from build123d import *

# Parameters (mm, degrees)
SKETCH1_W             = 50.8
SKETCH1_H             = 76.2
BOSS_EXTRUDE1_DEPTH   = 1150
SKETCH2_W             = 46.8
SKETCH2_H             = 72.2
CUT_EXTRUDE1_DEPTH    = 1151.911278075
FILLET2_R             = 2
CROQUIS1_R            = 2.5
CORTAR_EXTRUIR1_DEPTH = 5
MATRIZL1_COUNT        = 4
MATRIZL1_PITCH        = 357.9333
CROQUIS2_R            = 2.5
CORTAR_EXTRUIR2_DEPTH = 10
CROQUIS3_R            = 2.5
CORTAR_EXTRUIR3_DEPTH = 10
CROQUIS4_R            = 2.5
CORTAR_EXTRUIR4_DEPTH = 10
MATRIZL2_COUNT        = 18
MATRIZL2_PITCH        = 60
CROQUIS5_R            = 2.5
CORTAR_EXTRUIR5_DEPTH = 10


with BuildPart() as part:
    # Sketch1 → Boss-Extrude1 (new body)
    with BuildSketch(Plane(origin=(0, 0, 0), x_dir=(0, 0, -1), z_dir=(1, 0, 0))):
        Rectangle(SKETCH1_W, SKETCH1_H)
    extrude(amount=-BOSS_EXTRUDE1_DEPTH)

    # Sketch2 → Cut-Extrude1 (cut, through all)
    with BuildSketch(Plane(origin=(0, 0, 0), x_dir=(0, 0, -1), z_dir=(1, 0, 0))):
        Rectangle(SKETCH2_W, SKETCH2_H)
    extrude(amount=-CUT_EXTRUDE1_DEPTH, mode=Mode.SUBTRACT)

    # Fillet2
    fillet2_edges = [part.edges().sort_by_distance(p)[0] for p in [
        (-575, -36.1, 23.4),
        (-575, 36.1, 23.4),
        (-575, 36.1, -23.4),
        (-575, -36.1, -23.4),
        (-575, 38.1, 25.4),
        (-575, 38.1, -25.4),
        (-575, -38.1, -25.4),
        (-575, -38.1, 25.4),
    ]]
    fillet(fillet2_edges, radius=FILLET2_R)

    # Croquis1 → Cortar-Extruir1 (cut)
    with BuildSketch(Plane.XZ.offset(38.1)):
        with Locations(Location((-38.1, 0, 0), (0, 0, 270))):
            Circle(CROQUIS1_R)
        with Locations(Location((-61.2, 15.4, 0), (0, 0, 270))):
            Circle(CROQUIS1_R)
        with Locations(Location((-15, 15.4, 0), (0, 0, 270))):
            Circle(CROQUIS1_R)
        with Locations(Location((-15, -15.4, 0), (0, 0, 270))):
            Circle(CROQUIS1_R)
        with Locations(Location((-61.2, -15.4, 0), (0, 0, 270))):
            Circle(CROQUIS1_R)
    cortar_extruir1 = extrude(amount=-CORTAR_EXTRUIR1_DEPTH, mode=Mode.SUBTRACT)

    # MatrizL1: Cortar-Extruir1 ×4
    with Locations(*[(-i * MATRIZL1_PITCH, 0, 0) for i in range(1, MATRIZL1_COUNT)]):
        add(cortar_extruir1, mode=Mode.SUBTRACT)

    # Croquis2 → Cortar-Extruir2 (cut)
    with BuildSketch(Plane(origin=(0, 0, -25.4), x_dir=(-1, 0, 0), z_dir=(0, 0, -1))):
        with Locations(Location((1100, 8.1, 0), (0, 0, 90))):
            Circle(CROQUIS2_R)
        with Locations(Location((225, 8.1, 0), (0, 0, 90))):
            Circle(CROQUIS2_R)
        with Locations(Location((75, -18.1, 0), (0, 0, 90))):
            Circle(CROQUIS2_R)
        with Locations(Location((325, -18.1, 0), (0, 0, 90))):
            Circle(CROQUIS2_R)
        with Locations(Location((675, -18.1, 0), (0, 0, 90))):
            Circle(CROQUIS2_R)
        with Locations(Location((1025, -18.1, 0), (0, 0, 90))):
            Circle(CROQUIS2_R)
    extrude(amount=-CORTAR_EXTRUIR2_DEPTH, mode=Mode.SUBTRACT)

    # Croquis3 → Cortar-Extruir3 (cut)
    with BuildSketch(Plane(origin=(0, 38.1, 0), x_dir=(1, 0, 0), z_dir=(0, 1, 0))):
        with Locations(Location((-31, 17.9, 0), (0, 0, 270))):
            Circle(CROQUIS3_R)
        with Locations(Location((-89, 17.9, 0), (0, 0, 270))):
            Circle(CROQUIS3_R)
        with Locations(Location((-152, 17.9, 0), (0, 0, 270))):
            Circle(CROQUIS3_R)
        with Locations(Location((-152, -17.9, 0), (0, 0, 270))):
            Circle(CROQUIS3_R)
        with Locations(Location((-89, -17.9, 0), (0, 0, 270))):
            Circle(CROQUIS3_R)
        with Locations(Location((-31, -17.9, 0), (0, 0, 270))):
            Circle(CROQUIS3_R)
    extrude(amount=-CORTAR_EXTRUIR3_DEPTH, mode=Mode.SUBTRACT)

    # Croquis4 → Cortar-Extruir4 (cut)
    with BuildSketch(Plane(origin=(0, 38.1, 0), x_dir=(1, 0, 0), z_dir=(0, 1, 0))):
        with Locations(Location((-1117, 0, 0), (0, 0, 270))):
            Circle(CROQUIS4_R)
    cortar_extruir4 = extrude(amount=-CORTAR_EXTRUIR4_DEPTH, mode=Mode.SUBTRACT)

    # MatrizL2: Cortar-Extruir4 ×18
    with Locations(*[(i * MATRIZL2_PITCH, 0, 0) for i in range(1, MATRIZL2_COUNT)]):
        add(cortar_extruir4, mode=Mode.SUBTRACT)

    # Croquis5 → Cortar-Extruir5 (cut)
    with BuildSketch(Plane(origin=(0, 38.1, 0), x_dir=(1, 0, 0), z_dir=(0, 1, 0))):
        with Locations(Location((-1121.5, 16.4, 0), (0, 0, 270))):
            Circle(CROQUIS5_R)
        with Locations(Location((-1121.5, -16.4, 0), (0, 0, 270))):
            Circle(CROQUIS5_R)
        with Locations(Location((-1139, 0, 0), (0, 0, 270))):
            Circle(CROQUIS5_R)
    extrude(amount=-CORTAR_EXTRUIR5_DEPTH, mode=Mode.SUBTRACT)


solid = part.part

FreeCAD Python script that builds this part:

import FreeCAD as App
import Part
import Sketcher


def edges_at(feature, points):
    """Names of the edges that pass closest to the given points."""
    edges = feature.Shape.Edges
    near = lambda p: min(range(len(edges)), key=lambda i: edges[i].distToShape(Part.Vertex(*p))[0])
    return sorted({f"Edge{near(p) + 1}" for p in points})


def add_polygon(sketch, points):
    """Adds a closed chain of lines whose ends are joined by coincident constraints."""
    first, n = sketch.GeometryCount, len(points)
    for a, b in zip(points, points[1:] + points[:1]):
        sketch.addGeometry(Part.LineSegment(App.Vector(*a, 0), App.Vector(*b, 0)), False)
    for i in range(n):
        sketch.addConstraint(Sketcher.Constraint("Coincident", first + i, 2, first + (i + 1) % n, 1))

doc = App.newDocument("Part")
body = doc.addObject("PartDesign::Body", "Body")

# Sketch on YZ plane
sketch1 = doc.addObject("Sketcher::SketchObject", "Sketch")
body.addObject(sketch1)
sketch1.AttachmentSupport = (doc.YZ_Plane, [""])
sketch1.MapMode = "FlatFace"
add_polygon(sketch1, [(38, 25), (-38, 25), (-38, -25), (38, -25)])  # lines 0-3
sketch1.addConstraint([
    Sketcher.Constraint("Horizontal", 0),
    Sketcher.Constraint("Vertical", 1),
    Sketcher.Constraint("Horizontal", 2),
    Sketcher.Constraint("Vertical", 3),
    Sketcher.Constraint("Symmetric", 0, 2, 2, 2, -1, 1),
    Sketcher.Constraint("DistanceX", 0, 2, 0, 1, 76.2),
    Sketcher.Constraint("DistanceY", 1, 2, 1, 1, 50.8),
])
pad1 = doc.addObject("PartDesign::Pad", "Pad")
body.addObject(pad1)
pad1.Profile = sketch1
pad1.Length = 1150
pad1.Reversed = True

# Sketch on YZ plane
sketch2 = doc.addObject("Sketcher::SketchObject", "Sketch001")
body.addObject(sketch2)
sketch2.AttachmentSupport = (doc.YZ_Plane, [""])
sketch2.MapMode = "FlatFace"
add_polygon(sketch2, [(36, 23), (-36, 23), (-36, -23), (36, -23)])  # lines 0-3
sketch2.addConstraint([
    Sketcher.Constraint("Horizontal", 0),
    Sketcher.Constraint("Vertical", 1),
    Sketcher.Constraint("Horizontal", 2),
    Sketcher.Constraint("Vertical", 3),
    Sketcher.Constraint("Symmetric", 0, 2, 2, 2, -1, 1),
    Sketcher.Constraint("DistanceX", 0, 2, 0, 1, 72.2),
    Sketcher.Constraint("DistanceY", 1, 2, 1, 1, 46.8),
])
pocket1 = doc.addObject("PartDesign::Pocket", "Pocket")
body.addObject(pocket1)
pocket1.Profile = sketch2
pocket1.Type = "ThroughAll"
doc.recompute()

fillet = doc.addObject("PartDesign::Fillet", "Fillet")
body.addObject(fillet)
fillet.Base = (pocket1, edges_at(pocket1, [
    (-575, -36.1, 23.4),
    (-575, 36.1, 23.4),
    (-575, 36.1, -23.4),
    (-575, -36.1, -23.4),
    (-575, 38.1, 25.4),
    (-575, 38.1, -25.4),
    (-575, -38.1, -25.4),
    (-575, -38.1, 25.4),
]))
fillet.Radius = 2

# Sketch on XZ plane
sketch3 = doc.addObject("Sketcher::SketchObject", "Sketch002")
body.addObject(sketch3)
sketch3.AttachmentSupport = (doc.XZ_Plane, [""])
sketch3.MapMode = "FlatFace"
sketch3.AttachmentOffset = App.Placement(App.Vector(0, 0, 38.1), App.Rotation())
sketch3.addGeometry([
    Part.Circle(App.Vector(-38.1, 0, 0), App.Vector(0, 0, 1), 2.5),  # 0
    Part.Circle(App.Vector(-61.2, 15.4, 0), App.Vector(0, 0, 1), 2.5),  # 1
    Part.Circle(App.Vector(-15, 15.4, 0), App.Vector(0, 0, 1), 2.5),  # 2
    Part.Circle(App.Vector(-15, -15.4, 0), App.Vector(0, 0, 1), 2.5),  # 3
    Part.Circle(App.Vector(-61.2, -15.4, 0), App.Vector(0, 0, 1), 2.5),  # 4
], False)
sketch3.addConstraint([
    Sketcher.Constraint("Equal", 0, 1),
    Sketcher.Constraint("Equal", 1, 2),
    Sketcher.Constraint("Equal", 2, 3),
    Sketcher.Constraint("Equal", 3, 4),
    Sketcher.Constraint("Symmetric", 2, 3, 3, 3, -1),
    Sketcher.Constraint("Symmetric", 1, 3, 4, 3, -1),
    Sketcher.Constraint("PointOnObject", 0, 3, -1),
    Sketcher.Constraint("Horizontal", 1, 3, 2, 3),
    Sketcher.Constraint("Diameter", 0, 5.0),
    Sketcher.Constraint("DistanceX", 2, 3, -1, 1, 15.0),
    Sketcher.Constraint("DistanceX", 0, 3, -1, 1, 38.1),
    Sketcher.Constraint("DistanceX", 1, 3, -1, 1, 61.2),
    Sketcher.Constraint("DistanceY", -1, 1, 1, 3, 15.4),
])
pocket2 = doc.addObject("PartDesign::Pocket", "Pocket001")
body.addObject(pocket2)
pocket2.Profile = sketch3
pocket2.Length = 5
doc.recompute()

linearpattern = doc.addObject("PartDesign::LinearPattern", "LinearPattern")
body.addObject(linearpattern)
linearpattern.Originals = [pocket2]
linearpattern.Direction = (doc.X_Axis, [""])
linearpattern.Mode = "offset"
linearpattern.Offset = 357.9333
linearpattern.Occurrences = 4
linearpattern.Reversed = True
body.Tip = linearpattern

# Sketch on XY plane
sketch4 = doc.addObject("Sketcher::SketchObject", "Sketch003")
body.addObject(sketch4)
sketch4.AttachmentSupport = (doc.XY_Plane, [""])
sketch4.MapMode = "FlatFace"
sketch4.AttachmentOffset = App.Placement(App.Vector(0, 0, -25.4), App.Rotation())
sketch4.addGeometry([
    Part.Circle(App.Vector(-1100, 8.1, 0), App.Vector(0, 0, 1), 2.5),  # 0
    Part.Circle(App.Vector(-225, 8.1, 0), App.Vector(0, 0, 1), 2.5),  # 1
    Part.Circle(App.Vector(-75, -18.1, 0), App.Vector(0, 0, 1), 2.5),  # 2
    Part.Circle(App.Vector(-325, -18.1, 0), App.Vector(0, 0, 1), 2.5),  # 3
    Part.Circle(App.Vector(-675, -18.1, 0), App.Vector(0, 0, 1), 2.5),  # 4
    Part.Circle(App.Vector(-1025, -18.1, 0), App.Vector(0, 0, 1), 2.5),  # 5
], False)
sketch4.addConstraint([
    Sketcher.Constraint("Equal", 0, 1),
    Sketcher.Constraint("Equal", 1, 2),
    Sketcher.Constraint("Equal", 2, 3),
    Sketcher.Constraint("Equal", 3, 4),
    Sketcher.Constraint("Equal", 4, 5),
    Sketcher.Constraint("Horizontal", 0, 3, 1, 3),
    Sketcher.Constraint("Horizontal", 2, 3, 3, 3),
    Sketcher.Constraint("Horizontal", 3, 3, 4, 3),
    Sketcher.Constraint("Horizontal", 4, 3, 5, 3),
    Sketcher.Constraint("Diameter", 0, 5.0),
    Sketcher.Constraint("DistanceX", 0, 3, -1, 1, 1100.0),
    Sketcher.Constraint("DistanceX", 1, 3, -1, 1, 225.0),
    Sketcher.Constraint("DistanceX", 2, 3, -1, 1, 75.0),
    Sketcher.Constraint("DistanceX", 3, 3, -1, 1, 325.0),
    Sketcher.Constraint("DistanceX", 4, 3, -1, 1, 675.0),
    Sketcher.Constraint("DistanceX", 5, 3, -1, 1, 1025.0),
    Sketcher.Constraint("DistanceY", -1, 1, 0, 3, 8.1),
    Sketcher.Constraint("DistanceY", 2, 3, -1, 1, 18.1),
])
pocket3 = doc.addObject("PartDesign::Pocket", "Pocket002")
body.addObject(pocket3)
pocket3.Profile = sketch4
pocket3.Length = 10
pocket3.Reversed = True

# Sketch on XZ plane
sketch5 = doc.addObject("Sketcher::SketchObject", "Sketch004")
body.addObject(sketch5)
sketch5.AttachmentSupport = (doc.XZ_Plane, [""])
sketch5.MapMode = "FlatFace"
sketch5.AttachmentOffset = App.Placement(App.Vector(0, 0, -38.1), App.Rotation())
sketch5.addGeometry([
    Part.Circle(App.Vector(-31, -17.9, 0), App.Vector(0, 0, 1), 2.5),  # 0
    Part.Circle(App.Vector(-89, -17.9, 0), App.Vector(0, 0, 1), 2.5),  # 1
    Part.Circle(App.Vector(-152, -17.9, 0), App.Vector(0, 0, 1), 2.5),  # 2
    Part.Circle(App.Vector(-152, 17.9, 0), App.Vector(0, 0, 1), 2.5),  # 3
    Part.Circle(App.Vector(-89, 17.9, 0), App.Vector(0, 0, 1), 2.5),  # 4
    Part.Circle(App.Vector(-31, 17.9, 0), App.Vector(0, 0, 1), 2.5),  # 5
], False)
sketch5.addConstraint([
    Sketcher.Constraint("Equal", 0, 1),
    Sketcher.Constraint("Equal", 1, 2),
    Sketcher.Constraint("Equal", 2, 3),
    Sketcher.Constraint("Equal", 3, 4),
    Sketcher.Constraint("Equal", 4, 5),
    Sketcher.Constraint("Symmetric", 2, 3, 3, 3, -1),
    Sketcher.Constraint("Symmetric", 1, 3, 4, 3, -1),
    Sketcher.Constraint("Symmetric", 0, 3, 5, 3, -1),
    Sketcher.Constraint("Horizontal", 0, 3, 1, 3),
    Sketcher.Constraint("Horizontal", 1, 3, 2, 3),
    Sketcher.Constraint("Diameter", 0, 5.0),
    Sketcher.Constraint("DistanceX", 0, 3, -1, 1, 31.0),
    Sketcher.Constraint("DistanceX", 1, 3, -1, 1, 89.0),
    Sketcher.Constraint("DistanceX", 2, 3, -1, 1, 152.0),
    Sketcher.Constraint("DistanceY", 0, 3, -1, 1, 17.9),
])
pocket4 = doc.addObject("PartDesign::Pocket", "Pocket003")
body.addObject(pocket4)
pocket4.Profile = sketch5
pocket4.Length = 10
pocket4.Reversed = True

# Sketch on XZ plane
sketch6 = doc.addObject("Sketcher::SketchObject", "Sketch005")
body.addObject(sketch6)
sketch6.AttachmentSupport = (doc.XZ_Plane, [""])
sketch6.MapMode = "FlatFace"
sketch6.AttachmentOffset = App.Placement(App.Vector(0, 0, -38.1), App.Rotation())
sketch6.addGeometry(Part.Circle(App.Vector(-1117, 0, 0), App.Vector(0, 0, 1), 2.5), False)
sketch6.addConstraint([
    Sketcher.Constraint("PointOnObject", 0, 3, -1),
    Sketcher.Constraint("Diameter", 0, 5.0),
    Sketcher.Constraint("DistanceX", 0, 3, -1, 1, 1117.0),
])
pocket5 = doc.addObject("PartDesign::Pocket", "Pocket004")
body.addObject(pocket5)
pocket5.Profile = sketch6
pocket5.Length = 10
pocket5.Reversed = True
doc.recompute()

linearpattern2 = doc.addObject("PartDesign::LinearPattern", "LinearPattern001")
body.addObject(linearpattern2)
linearpattern2.Originals = [pocket5]
linearpattern2.Direction = (doc.X_Axis, [""])
linearpattern2.Mode = "offset"
linearpattern2.Offset = 60
linearpattern2.Occurrences = 18
body.Tip = linearpattern2

# Sketch on XZ plane
sketch7 = doc.addObject("Sketcher::SketchObject", "Sketch006")
body.addObject(sketch7)
sketch7.AttachmentSupport = (doc.XZ_Plane, [""])
sketch7.MapMode = "FlatFace"
sketch7.AttachmentOffset = App.Placement(App.Vector(0, 0, -38.1), App.Rotation())
sketch7.addGeometry([
    Part.Circle(App.Vector(-1121.5, -16.4, 0), App.Vector(0, 0, 1), 2.5),
    Part.Circle(App.Vector(-1121.5, 16.4, 0), App.Vector(0, 0, 1), 2.5),
    Part.Circle(App.Vector(-1139, 0, 0), App.Vector(0, 0, 1), 2.5),
], False)
sketch7.addConstraint([
    Sketcher.Constraint("Equal", 0, 1),
    Sketcher.Constraint("Equal", 1, 2),
    Sketcher.Constraint("Symmetric", 0, 3, 1, 3, -1),
    Sketcher.Constraint("PointOnObject", 2, 3, -1),
    Sketcher.Constraint("Diameter", 0, 5.0),
    Sketcher.Constraint("DistanceX", 2, 3, -1, 1, 1139.0),
    Sketcher.Constraint("DistanceX", 0, 3, -1, 1, 1121.5),
    Sketcher.Constraint("DistanceY", 0, 3, -1, 1, 16.4),
])
pocket6 = doc.addObject("PartDesign::Pocket", "Pocket005")
body.addObject(pocket6)
pocket6.Profile = sketch7
pocket6.Length = 10
pocket6.Reversed = True

doc.recompute()
